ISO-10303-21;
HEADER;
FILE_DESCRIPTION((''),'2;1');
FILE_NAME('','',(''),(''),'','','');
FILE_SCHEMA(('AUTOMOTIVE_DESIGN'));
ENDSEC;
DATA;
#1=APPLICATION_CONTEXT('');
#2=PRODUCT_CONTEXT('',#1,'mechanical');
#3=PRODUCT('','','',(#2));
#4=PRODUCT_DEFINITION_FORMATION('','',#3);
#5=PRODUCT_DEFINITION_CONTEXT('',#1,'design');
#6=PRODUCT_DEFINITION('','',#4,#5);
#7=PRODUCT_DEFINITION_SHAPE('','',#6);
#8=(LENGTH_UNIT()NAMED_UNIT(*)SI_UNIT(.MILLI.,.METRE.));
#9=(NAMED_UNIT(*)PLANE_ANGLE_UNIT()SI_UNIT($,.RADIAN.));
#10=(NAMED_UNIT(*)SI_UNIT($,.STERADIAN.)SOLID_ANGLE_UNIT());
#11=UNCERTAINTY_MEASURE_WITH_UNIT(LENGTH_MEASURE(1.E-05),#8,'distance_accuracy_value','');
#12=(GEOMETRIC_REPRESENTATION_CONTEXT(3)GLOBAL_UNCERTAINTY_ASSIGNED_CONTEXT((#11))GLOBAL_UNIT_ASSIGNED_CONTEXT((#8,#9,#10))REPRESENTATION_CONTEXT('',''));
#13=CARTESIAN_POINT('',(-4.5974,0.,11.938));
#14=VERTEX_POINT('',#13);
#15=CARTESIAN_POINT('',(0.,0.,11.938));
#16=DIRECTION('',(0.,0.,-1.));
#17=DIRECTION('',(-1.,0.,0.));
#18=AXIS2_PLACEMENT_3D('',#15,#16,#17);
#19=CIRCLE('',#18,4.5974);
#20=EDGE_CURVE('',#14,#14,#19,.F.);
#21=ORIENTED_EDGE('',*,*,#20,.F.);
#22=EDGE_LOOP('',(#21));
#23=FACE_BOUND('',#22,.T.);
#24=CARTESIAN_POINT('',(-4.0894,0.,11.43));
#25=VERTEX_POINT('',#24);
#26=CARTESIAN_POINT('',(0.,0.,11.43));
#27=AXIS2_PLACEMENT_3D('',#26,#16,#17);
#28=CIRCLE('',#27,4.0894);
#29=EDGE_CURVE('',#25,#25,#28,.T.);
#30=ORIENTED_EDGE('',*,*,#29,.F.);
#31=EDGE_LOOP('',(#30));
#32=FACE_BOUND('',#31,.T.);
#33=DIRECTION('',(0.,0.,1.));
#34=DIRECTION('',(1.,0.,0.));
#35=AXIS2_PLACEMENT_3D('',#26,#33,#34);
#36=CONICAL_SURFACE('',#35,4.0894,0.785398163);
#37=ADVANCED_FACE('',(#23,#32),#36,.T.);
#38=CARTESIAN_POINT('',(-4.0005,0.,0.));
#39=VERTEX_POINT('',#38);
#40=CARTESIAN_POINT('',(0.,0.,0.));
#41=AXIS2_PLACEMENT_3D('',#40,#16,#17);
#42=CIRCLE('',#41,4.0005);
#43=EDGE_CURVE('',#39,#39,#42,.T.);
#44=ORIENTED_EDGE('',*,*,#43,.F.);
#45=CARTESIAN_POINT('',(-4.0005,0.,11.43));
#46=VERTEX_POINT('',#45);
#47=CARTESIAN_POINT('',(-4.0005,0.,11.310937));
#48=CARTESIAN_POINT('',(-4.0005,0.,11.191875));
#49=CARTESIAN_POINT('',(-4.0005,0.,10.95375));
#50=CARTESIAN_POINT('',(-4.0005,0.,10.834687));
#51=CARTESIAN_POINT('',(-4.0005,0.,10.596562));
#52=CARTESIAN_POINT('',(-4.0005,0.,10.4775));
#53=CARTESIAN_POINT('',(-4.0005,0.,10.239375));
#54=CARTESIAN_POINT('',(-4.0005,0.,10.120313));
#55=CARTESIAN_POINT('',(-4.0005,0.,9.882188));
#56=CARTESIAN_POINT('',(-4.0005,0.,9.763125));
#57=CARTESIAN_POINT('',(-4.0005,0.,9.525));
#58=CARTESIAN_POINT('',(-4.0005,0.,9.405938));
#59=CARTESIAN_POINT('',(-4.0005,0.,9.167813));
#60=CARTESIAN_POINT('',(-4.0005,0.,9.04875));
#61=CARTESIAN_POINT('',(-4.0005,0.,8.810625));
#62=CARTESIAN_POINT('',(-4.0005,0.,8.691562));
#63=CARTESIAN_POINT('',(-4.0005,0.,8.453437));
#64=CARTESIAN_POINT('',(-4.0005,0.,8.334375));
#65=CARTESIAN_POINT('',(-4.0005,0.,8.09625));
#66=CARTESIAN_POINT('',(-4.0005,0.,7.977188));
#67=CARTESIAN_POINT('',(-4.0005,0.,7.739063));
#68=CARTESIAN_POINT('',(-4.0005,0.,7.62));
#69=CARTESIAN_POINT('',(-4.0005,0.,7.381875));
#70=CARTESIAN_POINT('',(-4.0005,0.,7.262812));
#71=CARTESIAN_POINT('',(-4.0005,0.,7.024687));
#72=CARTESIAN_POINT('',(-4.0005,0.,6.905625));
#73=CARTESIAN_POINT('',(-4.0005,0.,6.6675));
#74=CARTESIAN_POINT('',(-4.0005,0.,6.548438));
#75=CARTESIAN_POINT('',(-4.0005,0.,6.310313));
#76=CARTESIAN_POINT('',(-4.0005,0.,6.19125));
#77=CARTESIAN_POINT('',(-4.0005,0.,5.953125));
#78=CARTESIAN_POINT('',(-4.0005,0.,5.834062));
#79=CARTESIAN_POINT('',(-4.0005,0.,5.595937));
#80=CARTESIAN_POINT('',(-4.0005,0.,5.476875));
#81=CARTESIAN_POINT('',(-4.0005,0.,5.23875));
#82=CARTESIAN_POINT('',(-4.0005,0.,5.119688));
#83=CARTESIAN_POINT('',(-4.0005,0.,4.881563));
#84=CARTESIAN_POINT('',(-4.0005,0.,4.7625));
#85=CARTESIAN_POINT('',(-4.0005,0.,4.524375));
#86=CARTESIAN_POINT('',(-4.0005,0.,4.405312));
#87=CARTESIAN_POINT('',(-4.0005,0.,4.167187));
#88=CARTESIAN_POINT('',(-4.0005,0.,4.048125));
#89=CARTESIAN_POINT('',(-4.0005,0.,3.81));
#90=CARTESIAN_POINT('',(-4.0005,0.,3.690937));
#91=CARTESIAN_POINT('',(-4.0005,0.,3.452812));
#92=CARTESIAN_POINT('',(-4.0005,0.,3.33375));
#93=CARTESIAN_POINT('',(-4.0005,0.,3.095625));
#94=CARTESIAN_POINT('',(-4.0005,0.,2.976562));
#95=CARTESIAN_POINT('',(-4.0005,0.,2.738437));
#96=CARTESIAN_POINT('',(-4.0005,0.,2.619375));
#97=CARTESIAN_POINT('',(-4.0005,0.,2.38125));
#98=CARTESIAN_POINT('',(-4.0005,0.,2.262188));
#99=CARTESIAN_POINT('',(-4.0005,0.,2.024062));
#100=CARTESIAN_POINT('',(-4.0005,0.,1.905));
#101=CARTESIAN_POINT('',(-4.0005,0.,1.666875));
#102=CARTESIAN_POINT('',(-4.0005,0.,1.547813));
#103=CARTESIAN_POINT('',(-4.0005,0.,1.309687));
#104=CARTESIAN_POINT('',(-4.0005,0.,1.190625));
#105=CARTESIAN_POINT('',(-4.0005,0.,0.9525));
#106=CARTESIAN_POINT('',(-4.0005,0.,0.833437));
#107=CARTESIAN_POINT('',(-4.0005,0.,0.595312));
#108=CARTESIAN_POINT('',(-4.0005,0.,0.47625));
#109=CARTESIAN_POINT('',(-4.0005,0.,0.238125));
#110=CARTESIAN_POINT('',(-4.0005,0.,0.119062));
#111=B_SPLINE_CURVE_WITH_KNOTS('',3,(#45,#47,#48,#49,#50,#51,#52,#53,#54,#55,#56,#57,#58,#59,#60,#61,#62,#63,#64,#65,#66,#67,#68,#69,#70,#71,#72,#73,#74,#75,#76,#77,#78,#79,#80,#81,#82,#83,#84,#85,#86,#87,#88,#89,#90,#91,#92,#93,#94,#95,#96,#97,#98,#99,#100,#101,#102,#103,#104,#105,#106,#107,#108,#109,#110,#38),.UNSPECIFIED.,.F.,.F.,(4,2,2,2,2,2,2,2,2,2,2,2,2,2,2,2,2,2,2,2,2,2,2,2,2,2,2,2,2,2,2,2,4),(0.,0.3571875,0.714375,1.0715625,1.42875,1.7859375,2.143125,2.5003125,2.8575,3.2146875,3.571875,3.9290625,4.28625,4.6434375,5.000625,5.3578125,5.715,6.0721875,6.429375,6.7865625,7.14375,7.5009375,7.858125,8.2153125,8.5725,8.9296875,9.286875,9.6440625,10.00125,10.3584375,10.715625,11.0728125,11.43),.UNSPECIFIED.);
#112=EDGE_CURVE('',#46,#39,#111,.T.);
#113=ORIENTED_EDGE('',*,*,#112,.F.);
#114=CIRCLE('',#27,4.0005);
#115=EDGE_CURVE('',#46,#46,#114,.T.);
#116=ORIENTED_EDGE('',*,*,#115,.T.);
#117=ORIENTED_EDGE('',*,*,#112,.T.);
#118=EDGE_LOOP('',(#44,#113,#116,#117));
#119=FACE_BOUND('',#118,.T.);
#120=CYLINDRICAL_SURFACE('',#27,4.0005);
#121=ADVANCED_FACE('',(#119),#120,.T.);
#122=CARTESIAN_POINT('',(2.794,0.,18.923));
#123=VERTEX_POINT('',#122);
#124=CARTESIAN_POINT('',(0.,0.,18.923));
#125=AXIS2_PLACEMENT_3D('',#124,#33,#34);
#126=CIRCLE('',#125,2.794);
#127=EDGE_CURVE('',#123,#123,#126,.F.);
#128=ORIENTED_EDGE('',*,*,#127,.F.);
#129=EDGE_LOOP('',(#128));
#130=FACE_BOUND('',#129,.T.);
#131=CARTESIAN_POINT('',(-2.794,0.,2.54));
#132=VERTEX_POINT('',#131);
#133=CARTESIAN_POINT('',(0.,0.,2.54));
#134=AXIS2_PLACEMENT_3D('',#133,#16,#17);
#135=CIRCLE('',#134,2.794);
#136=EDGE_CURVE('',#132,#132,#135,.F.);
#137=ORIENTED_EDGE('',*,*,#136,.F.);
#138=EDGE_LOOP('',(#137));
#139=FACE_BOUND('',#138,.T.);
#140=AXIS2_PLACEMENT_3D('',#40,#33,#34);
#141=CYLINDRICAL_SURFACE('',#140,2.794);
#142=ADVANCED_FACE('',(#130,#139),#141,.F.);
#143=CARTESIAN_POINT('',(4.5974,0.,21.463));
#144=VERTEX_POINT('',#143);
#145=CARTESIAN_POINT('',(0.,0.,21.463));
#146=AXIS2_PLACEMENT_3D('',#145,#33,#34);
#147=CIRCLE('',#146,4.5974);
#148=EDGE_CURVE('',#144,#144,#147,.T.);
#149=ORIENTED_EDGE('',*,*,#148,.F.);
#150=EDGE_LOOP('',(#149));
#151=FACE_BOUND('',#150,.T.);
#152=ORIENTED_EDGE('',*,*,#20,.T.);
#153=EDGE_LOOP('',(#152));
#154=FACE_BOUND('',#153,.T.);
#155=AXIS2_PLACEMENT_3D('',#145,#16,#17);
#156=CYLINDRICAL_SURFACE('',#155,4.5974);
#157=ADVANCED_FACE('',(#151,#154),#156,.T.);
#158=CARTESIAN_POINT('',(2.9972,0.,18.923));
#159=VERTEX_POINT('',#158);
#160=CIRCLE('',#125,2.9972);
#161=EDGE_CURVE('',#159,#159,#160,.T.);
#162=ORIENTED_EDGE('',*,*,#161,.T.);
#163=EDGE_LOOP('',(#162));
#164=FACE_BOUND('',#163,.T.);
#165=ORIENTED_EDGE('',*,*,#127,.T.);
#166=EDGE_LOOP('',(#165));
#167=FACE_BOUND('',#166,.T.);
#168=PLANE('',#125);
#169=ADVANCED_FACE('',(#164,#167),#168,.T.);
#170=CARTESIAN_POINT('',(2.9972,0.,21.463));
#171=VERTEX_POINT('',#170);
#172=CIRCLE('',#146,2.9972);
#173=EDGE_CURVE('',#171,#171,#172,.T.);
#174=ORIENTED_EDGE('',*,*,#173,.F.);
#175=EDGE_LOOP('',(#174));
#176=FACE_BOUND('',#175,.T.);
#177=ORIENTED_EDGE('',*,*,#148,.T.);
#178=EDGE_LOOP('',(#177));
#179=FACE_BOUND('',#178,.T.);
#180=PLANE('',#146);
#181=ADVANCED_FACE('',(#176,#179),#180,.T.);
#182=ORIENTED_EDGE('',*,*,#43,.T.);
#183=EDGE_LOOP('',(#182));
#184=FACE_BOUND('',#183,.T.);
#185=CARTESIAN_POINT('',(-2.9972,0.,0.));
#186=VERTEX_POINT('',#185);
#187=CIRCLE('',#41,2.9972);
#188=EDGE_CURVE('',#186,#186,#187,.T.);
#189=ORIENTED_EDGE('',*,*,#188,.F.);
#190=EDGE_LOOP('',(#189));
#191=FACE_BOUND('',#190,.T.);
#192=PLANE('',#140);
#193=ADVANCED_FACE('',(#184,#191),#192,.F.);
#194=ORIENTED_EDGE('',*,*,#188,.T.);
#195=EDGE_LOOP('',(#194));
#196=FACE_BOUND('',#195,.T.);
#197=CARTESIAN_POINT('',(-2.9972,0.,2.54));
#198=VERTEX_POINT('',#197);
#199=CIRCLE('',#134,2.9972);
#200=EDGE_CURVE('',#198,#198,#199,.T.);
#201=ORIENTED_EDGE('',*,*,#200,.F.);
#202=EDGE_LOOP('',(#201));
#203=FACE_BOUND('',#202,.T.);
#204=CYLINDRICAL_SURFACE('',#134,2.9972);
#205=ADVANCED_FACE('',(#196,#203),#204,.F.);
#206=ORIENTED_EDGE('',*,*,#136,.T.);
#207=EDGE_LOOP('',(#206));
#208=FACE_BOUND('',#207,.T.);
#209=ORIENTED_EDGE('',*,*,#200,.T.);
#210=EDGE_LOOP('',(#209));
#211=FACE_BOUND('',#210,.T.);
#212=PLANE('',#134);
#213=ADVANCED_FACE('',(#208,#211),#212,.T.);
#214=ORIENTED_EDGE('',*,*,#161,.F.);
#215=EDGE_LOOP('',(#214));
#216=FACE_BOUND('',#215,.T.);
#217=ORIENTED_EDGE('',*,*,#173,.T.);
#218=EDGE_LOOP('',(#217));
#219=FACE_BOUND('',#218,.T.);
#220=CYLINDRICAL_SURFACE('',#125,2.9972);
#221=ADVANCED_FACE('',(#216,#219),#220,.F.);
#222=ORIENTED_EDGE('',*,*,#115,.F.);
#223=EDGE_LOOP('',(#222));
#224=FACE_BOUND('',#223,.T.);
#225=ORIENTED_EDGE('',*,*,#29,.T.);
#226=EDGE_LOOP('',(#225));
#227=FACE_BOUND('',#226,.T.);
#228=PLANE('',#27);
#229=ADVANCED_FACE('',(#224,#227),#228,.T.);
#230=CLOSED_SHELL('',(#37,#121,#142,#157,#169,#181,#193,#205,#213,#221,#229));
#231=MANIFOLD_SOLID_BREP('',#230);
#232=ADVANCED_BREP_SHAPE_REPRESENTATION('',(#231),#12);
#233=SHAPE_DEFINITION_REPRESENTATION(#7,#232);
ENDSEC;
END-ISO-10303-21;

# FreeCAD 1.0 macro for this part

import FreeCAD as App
import Part
import Sketcher
Q = App.Units.Quantity


def edges_at(feature, points):
    """Names of the edges that pass closest to the given points."""
    edges = feature.Shape.Edges
    near = lambda p: min(range(len(edges)), key=lambda i: edges[i].distToShape(Part.Vertex(*p))[0])
    return sorted({f"Edge{near(p) + 1}" for p in points})

doc = App.newDocument("Part")
params = doc.addObject("Spreadsheet::Sheet", "Params")
for row, (alias, value) in enumerate([
    ("sketch1_diameter", "0.362 in"),
    ("pad1_length", "0.845 in"),
    ("sketch2_diameter", "0.22 in"),
    ("sketch3_diameter", "0.236 in"),
    ("pocket2_length", "0.1 in"),
    ("sketch4_diameter", "0.315 in"),
    ("pocket3_length", "0.45 in"),
    ("sketch5_diameter", "0.236 in"),
    ("pocket4_length", "0.1 in"),
    ("chamfer_size", "0.02 in"),
], start=1):
    params.set(f"A{row}", alias)
    params.set(f"B{row}", "=" + value)
    params.setAlias(f"B{row}", alias)

body = doc.addObject("PartDesign::Body", "Body")

# Sketch on XY plane
sketch1 = body.newObject("Sketcher::SketchObject", "Sketch")
sketch1.AttachmentSupport = (doc.getObject("XY_Plane"), [""])
sketch1.MapMode = "FlatFace"
sketch1.addGeometry(Part.Circle(App.Vector(0, 0, 0), App.Vector(0, 0, 1), 4.5974), False)
sketch1.addConstraint([
    Sketcher.Constraint("Coincident", 0, 3, -1, 1),
    Sketcher.Constraint("Diameter", 0, Q("0.362 in")),
])
sketch1.setExpression("Constraints[1]", "Params.sketch1_diameter")
pad1 = body.newObject("PartDesign::Pad", "Pad")
pad1.Profile = sketch1
pad1.setExpression("Length", "Params.pad1_length")

# Sketch on XY plane
sketch2 = body.newObject("Sketcher::SketchObject", "Sketch001")
sketch2.AttachmentSupport = (doc.getObject("XY_Plane"), [""])
sketch2.MapMode = "FlatFace"
sketch2.AttachmentOffset = App.Placement(App.Vector(0, 0, 0.845 * 25.4), App.Rotation())
sketch2.addGeometry(Part.Circle(App.Vector(0, 0, 0), App.Vector(0, 0, 1), 2.794), False)
sketch2.addConstraint([
    Sketcher.Constraint("Coincident", 0, 3, -1, 1),
    Sketcher.Constraint("Diameter", 0, Q("0.22 in")),
])
sketch2.setExpression("Constraints[1]", "Params.sketch2_diameter")
pocket1 = body.newObject("PartDesign::Pocket", "Pocket")
pocket1.Profile = sketch2
pocket1.Type = "ThroughAll"

# Sketch on XY plane
sketch3 = body.newObject("Sketcher::SketchObject", "Sketch002")
sketch3.AttachmentSupport = (doc.getObject("XY_Plane"), [""])
sketch3.MapMode = "FlatFace"
sketch3.AttachmentOffset = App.Placement(App.Vector(0, 0, 0.845 * 25.4), App.Rotation())
sketch3.addGeometry(Part.Circle(App.Vector(0, 0, 0), App.Vector(0, 0, 1), 2.9972), False)
sketch3.addConstraint([
    Sketcher.Constraint("Coincident", 0, 3, -1, 1),
    Sketcher.Constraint("Diameter", 0, Q("0.236 in")),
])
sketch3.setExpression("Constraints[1]", "Params.sketch3_diameter")
pocket2 = body.newObject("PartDesign::Pocket", "Pocket001")
pocket2.Profile = sketch3
pocket2.setExpression("Length", "Params.pocket2_length")

# Sketch on XY plane
sketch4 = body.newObject("Sketcher::SketchObject", "Sketch003")
sketch4.AttachmentSupport = (doc.getObject("XY_Plane"), [""])
sketch4.MapMode = "FlatFace"
sketch4.addGeometry([
    Part.LineSegment(App.Vector(8.106, 8.106, 0), App.Vector(8.106, -8.106, 0)),  # 0
    Part.LineSegment(App.Vector(8.106, -8.106, 0), App.Vector(-8.106, -8.106, 0)),  # 1
    Part.LineSegment(App.Vector(-8.106, -8.106, 0), App.Vector(-8.106, 8.106, 0)),  # 2
    Part.LineSegment(App.Vector(-8.106, 8.106, 0), App.Vector(8.106, 8.106, 0)),  # 3
    Part.Circle(App.Vector(0, 0, 0), App.Vector(0, 0, 1), 4.0005),  # 4
], False)
sketch4.addConstraint([
    Sketcher.Constraint("Coincident", 0, 2, 1, 1),
    Sketcher.Constraint("Coincident", 1, 2, 2, 1),
    Sketcher.Constraint("Coincident", 2, 2, 3, 1),
    Sketcher.Constraint("Coincident", 3, 2, 0, 1),
    Sketcher.Constraint("Vertical", 0),
    Sketcher.Constraint("Horizontal", 1),
    Sketcher.Constraint("Vertical", 2),
    Sketcher.Constraint("Horizontal", 3),
    Sketcher.Constraint("Coincident", 4, 3, -1, 1),
    Sketcher.Constraint("Symmetric", 0, 2, 2, 2, -1, 1),
    Sketcher.Constraint("Equal", 3, 0),
    Sketcher.Constraint("Diameter", 4, Q("0.315 in")),
    Sketcher.Constraint("DistanceX", 1, 2, 1, 1, Q("16.212 mm")),
])
sketch4.setExpression("Constraints[11]", "Params.sketch4_diameter")
pocket3 = body.newObject("PartDesign::Pocket", "Pocket002")
pocket3.Profile = sketch4
pocket3.setExpression("Length", "Params.pocket3_length")
pocket3.Reversed = True

# Sketch on XY plane
sketch5 = body.newObject("Sketcher::SketchObject", "Sketch004")
sketch5.AttachmentSupport = (doc.getObject("XY_Plane"), [""])
sketch5.MapMode = "FlatFace"
sketch5.AttachmentOffset = App.Placement(App.Vector(0, 0, 0.1 * 25.4), App.Rotation())
sketch5.addGeometry(Part.Circle(App.Vector(0, 0, 0), App.Vector(0, 0, 1), 2.9972), False)
sketch5.addConstraint([
    Sketcher.Constraint("Coincident", 0, 3, -1, 1),
    Sketcher.Constraint("Diameter", 0, Q("0.236 in")),
])
sketch5.setExpression("Constraints[1]", "Params.sketch5_diameter")
pocket4 = body.newObject("PartDesign::Pocket", "Pocket003")
pocket4.Profile = sketch5
pocket4.setExpression("Length", "Params.pocket4_length")
doc.recompute()

chamfer = body.newObject("PartDesign::Chamfer", "Chamfer")
chamfer.Base = (pocket4, edges_at(pocket4, [(-4.597, 0, 11.43)]))
chamfer.setExpression("Size", "Params.chamfer_size")

doc.recompute()
